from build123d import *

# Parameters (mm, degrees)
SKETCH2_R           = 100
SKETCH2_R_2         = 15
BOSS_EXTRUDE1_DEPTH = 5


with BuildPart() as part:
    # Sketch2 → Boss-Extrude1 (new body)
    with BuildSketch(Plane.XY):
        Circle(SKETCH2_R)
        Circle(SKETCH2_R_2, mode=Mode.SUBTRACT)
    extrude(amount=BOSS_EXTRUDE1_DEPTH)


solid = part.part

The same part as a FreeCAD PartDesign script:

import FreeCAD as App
import Part
import Sketcher
from FreeCAD import Vector
Q = App.Units.Quantity

doc = App.newDocument("Part")
body = doc.addObject("PartDesign::Body", "Body")

sketch1 = doc.addObject("Sketcher::SketchObject", "Sketch")
body.addObject(sketch1)
sketch1.AttachmentSupport = (doc.XY_Plane, [""])
sketch1.MapMode = "FlatFace"
sketch1.addGeometry(Part.Circle(Vector(0, 0, 0), Vector(0, 0, 1), 100), False)
sketch1.addGeometry(Part.Circle(Vector(0, 0, 0), Vector(0, 0, 1), 15), False)
sketch1.addConstraint(Sketcher.Constraint("Coincident", 0, 3, -1, 1))
sketch1.addConstraint(Sketcher.Constraint("Coincident", 1, 3, -1, 1))
sketch1.addConstraint(Sketcher.Constraint("Diameter", 0, Q("200 mm")))
sketch1.addConstraint(Sketcher.Constraint("Diameter", 1, Q("30 mm")))
pad1 = doc.addObject("PartDesign::Pad", "Pad")
body.addObject(pad1)
pad1.Profile = sketch1
pad1.Length = 5

doc.recompute()
